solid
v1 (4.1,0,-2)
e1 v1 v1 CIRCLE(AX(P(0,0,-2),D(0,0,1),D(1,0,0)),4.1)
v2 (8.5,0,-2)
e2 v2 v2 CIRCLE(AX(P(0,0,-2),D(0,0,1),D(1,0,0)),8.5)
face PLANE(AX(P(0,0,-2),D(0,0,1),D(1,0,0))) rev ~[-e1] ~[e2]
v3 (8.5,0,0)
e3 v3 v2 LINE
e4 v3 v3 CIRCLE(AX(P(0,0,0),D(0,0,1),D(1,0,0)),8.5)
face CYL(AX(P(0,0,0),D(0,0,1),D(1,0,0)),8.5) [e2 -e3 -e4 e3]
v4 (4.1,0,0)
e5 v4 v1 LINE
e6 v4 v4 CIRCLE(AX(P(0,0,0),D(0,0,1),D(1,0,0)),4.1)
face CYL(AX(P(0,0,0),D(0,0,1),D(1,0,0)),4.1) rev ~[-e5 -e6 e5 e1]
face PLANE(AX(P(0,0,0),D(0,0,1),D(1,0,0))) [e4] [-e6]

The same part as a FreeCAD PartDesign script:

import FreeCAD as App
import Part
import Sketcher
from FreeCAD import Vector
Q = App.Units.Quantity

doc = App.newDocument("Part")
body = doc.addObject("PartDesign::Body", "Body")

# Sketch on XY plane
sketch1 = doc.addObject("Sketcher::SketchObject", "Sketch")
body.addObject(sketch1)
sketch1.AttachmentSupport = (doc.XY_Plane, [""])
sketch1.MapMode = "FlatFace"
sketch1.addGeometry(Part.Circle(Vector(0, 0, 0), Vector(0, 0, 1), 8.5), False)
sketch1.addGeometry(Part.Circle(Vector(0, 0, 0), Vector(0, 0, 1), 4.1), False)
sketch1.addConstraint(Sketcher.Constraint("Coincident", 0, 3, -1, 1))
sketch1.addConstraint(Sketcher.Constraint("Coincident", 1, 3, -1, 1))
sketch1.addConstraint(Sketcher.Constraint("Diameter", 0, Q("17 mm")))
sketch1.addConstraint(Sketcher.Constraint("Diameter", 1, Q("8.2 mm")))
pad1 = doc.addObject("PartDesign::Pad", "Pad")
body.addObject(pad1)
pad1.Profile = sketch1
pad1.Length = 2
pad1.Reversed = True

doc.recompute()
